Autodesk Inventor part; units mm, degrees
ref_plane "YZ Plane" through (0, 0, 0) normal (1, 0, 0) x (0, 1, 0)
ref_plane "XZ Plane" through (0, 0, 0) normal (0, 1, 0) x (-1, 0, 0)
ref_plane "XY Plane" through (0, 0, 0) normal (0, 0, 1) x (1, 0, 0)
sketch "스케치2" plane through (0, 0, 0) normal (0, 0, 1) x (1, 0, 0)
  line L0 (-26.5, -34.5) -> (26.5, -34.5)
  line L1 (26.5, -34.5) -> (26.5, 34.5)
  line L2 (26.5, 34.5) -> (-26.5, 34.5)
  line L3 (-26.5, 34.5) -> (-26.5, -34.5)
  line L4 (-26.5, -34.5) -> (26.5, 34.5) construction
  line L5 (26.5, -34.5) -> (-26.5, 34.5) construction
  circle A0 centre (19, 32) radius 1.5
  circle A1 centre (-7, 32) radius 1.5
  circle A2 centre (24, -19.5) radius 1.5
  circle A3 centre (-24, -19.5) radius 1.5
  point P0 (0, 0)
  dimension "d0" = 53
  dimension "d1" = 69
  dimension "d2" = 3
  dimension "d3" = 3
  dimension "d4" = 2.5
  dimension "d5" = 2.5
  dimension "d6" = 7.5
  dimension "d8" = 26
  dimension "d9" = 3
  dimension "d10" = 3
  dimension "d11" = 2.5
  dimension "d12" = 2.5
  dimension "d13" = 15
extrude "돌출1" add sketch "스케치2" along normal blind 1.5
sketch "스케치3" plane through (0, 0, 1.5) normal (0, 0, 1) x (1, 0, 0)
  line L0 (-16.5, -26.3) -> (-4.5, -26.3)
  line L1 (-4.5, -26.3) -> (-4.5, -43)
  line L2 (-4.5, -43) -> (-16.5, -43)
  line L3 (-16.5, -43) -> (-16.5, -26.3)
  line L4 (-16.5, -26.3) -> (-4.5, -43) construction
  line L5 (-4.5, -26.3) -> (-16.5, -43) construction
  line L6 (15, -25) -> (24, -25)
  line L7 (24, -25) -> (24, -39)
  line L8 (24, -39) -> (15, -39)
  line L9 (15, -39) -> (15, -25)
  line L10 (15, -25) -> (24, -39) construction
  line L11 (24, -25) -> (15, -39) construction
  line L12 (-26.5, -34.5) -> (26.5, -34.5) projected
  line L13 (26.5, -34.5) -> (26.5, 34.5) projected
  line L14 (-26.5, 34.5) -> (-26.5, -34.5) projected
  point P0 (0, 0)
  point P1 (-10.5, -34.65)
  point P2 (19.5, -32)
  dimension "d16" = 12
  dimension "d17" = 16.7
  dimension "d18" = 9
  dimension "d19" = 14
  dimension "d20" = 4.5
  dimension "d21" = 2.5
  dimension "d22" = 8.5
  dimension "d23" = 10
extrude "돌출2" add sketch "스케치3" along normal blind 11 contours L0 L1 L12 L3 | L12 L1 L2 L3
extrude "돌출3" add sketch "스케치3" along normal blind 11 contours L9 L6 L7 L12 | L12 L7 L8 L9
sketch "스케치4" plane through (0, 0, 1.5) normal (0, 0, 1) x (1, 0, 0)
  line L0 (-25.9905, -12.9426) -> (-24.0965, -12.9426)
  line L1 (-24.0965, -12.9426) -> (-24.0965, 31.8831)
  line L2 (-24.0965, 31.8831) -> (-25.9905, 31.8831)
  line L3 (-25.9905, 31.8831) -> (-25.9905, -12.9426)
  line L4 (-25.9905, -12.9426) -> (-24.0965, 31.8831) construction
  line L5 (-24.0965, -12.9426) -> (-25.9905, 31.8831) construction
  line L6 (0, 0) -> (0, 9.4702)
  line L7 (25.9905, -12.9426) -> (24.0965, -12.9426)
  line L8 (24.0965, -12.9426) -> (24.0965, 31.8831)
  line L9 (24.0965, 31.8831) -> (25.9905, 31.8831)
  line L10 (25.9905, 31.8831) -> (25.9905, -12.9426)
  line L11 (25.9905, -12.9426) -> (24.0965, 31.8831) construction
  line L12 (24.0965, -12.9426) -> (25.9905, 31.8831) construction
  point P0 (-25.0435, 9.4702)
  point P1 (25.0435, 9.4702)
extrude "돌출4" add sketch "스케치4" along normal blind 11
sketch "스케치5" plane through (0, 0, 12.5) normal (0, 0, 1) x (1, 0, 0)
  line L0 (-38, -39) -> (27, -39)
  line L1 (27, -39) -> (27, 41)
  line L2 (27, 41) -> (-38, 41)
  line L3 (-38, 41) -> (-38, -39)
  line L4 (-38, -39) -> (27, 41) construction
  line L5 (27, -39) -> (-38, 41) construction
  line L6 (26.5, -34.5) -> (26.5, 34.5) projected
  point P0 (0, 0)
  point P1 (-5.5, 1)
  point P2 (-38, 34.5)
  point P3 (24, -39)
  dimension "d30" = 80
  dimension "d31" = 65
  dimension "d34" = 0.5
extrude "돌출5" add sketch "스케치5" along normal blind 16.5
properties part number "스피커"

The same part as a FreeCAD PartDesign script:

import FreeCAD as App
import Part
import Sketcher
from FreeCAD import Vector
Q = App.Units.Quantity

doc = App.newDocument("Part")
body = doc.addObject("PartDesign::Body", "Body")

# Sketch on XY plane
sketch1 = body.newObject("Sketcher::SketchObject", "Sketch")
sketch1.AttachmentSupport = (doc.getObject("XY_Plane"), [""])
sketch1.MapMode = "FlatFace"
sketch1.addGeometry(Part.LineSegment(Vector(-26.5, 34.5, 0), Vector(-26.5, -34.5, 0)), False)
sketch1.addGeometry(Part.LineSegment(Vector(-26.5, -34.5, 0), Vector(26.5, -34.5, 0)), False)
sketch1.addGeometry(Part.LineSegment(Vector(26.5, -34.5, 0), Vector(26.5, 34.5, 0)), False)
sketch1.addGeometry(Part.LineSegment(Vector(26.5, 34.5, 0), Vector(-26.5, 34.5, 0)), False)
sketch1.addGeometry(Part.Circle(Vector(-24, -19.5, 0), Vector(0, 0, 1), 1.5), False)
sketch1.addGeometry(Part.Circle(Vector(24, -19.5, 0), Vector(0, 0, 1), 1.5), False)
sketch1.addGeometry(Part.Circle(Vector(-7, 32, 0), Vector(0, 0, 1), 1.5), False)
sketch1.addGeometry(Part.Circle(Vector(19, 32, 0), Vector(0, 0, 1), 1.5), False)
sketch1.addConstraint(Sketcher.Constraint("Coincident", 0, 2, 1, 1))
sketch1.addConstraint(Sketcher.Constraint("Coincident", 1, 2, 2, 1))
sketch1.addConstraint(Sketcher.Constraint("Coincident", 2, 2, 3, 1))
sketch1.addConstraint(Sketcher.Constraint("Coincident", 3, 2, 0, 1))
sketch1.addConstraint(Sketcher.Constraint("Vertical", 0))
sketch1.addConstraint(Sketcher.Constraint("Horizontal", 1))
sketch1.addConstraint(Sketcher.Constraint("Vertical", 2))
sketch1.addConstraint(Sketcher.Constraint("Horizontal", 3))
sketch1.addConstraint(Sketcher.Constraint("Equal", 4, 5))
sketch1.addConstraint(Sketcher.Constraint("Equal", 5, 6))
sketch1.addConstraint(Sketcher.Constraint("Equal", 6, 7))
sketch1.addConstraint(Sketcher.Constraint("Symmetric", 0, 2, 2, 2, -1, 1))
sketch1.addConstraint(Sketcher.Constraint("Symmetric", 4, 3, 5, 3, -2))
sketch1.addConstraint(Sketcher.Constraint("Horizontal", 6, 3, 7, 3))
sketch1.addConstraint(Sketcher.Constraint("Diameter", 4, Q("3 mm")))
sketch1.addConstraint(Sketcher.Constraint("DistanceX", 1, 1, 1, 2, Q("53 mm")))
sketch1.addConstraint(Sketcher.Constraint("DistanceY", 0, 2, 0, 1, Q("69 mm")))
sketch1.addConstraint(Sketcher.Constraint("DistanceX", 6, 3, 7, 3, Q("26 mm")))
sketch1.addConstraint(Sketcher.Constraint("DistanceY", 0, 2, 4, 3, Q("15 mm")))
sketch1.addConstraint(Sketcher.Constraint("DistanceX", 0, 2, 4, 3, Q("2.5 mm")))
sketch1.addConstraint(Sketcher.Constraint("DistanceX", 7, 3, 1, 2, Q("7.5 mm")))
sketch1.addConstraint(Sketcher.Constraint("DistanceY", 7, 3, 2, 2, Q("2.5 mm")))
pad1 = body.newObject("PartDesign::Pad", "Pad")
pad1.Profile = sketch1
pad1.Length = 1.5

# Sketch on XY plane
sketch2 = body.newObject("Sketcher::SketchObject", "Sketch001")
sketch2.AttachmentSupport = (doc.getObject("XY_Plane"), [""])
sketch2.MapMode = "FlatFace"
sketch2.AttachmentOffset = App.Placement(Vector(0, 0, 1.5), App.Rotation())
sketch2.addGeometry(Part.LineSegment(Vector(-4.5, -26.3, 0), Vector(-16.5, -26.3, 0)), False)
sketch2.addGeometry(Part.LineSegment(Vector(-16.5, -26.3, 0), Vector(-16.5, -43, 0)), False)
sketch2.addGeometry(Part.LineSegment(Vector(-16.5, -43, 0), Vector(-4.5, -43, 0)), False)
sketch2.addGeometry(Part.LineSegment(Vector(-4.5, -43, 0), Vector(-4.5, -26.3, 0)), False)
sketch2.addConstraint(Sketcher.Constraint("Coincident", 0, 2, 1, 1))
sketch2.addConstraint(Sketcher.Constraint("Coincident", 1, 2, 2, 1))
sketch2.addConstraint(Sketcher.Constraint("Coincident", 2, 2, 3, 1))
sketch2.addConstraint(Sketcher.Constraint("Coincident", 3, 2, 0, 1))
sketch2.addConstraint(Sketcher.Constraint("Horizontal", 0))
sketch2.addConstraint(Sketcher.Constraint("Vertical", 1))
sketch2.addConstraint(Sketcher.Constraint("Horizontal", 2))
sketch2.addConstraint(Sketcher.Constraint("Vertical", 3))
sketch2.addConstraint(Sketcher.Constraint("DistanceX", 0, 2, 0, 1, Q("12 mm")))
sketch2.addConstraint(Sketcher.Constraint("DistanceY", 1, 2, 1, 1, Q("16.7 mm")))
sketch2.addConstraint(Sketcher.Constraint("DistanceX", 2, 2, -1, 1, Q("4.5 mm")))
sketch2.addConstraint(Sketcher.Constraint("DistanceY", 1, 2, -1, 1, Q("43 mm")))
pad2 = body.newObject("PartDesign::Pad", "Pad001")
pad2.Profile = sketch2
pad2.Length = 11

# Sketch on XY plane
sketch3 = body.newObject("Sketcher::SketchObject", "Sketch002")
sketch3.AttachmentSupport = (doc.getObject("XY_Plane"), [""])
sketch3.MapMode = "FlatFace"
sketch3.AttachmentOffset = App.Placement(Vector(0, 0, 1.5), App.Rotation())
sketch3.addGeometry(Part.LineSegment(Vector(15, -25, 0), Vector(15, -39, 0)), False)
sketch3.addGeometry(Part.LineSegment(Vector(15, -39, 0), Vector(24, -39, 0)), False)
sketch3.addGeometry(Part.LineSegment(Vector(24, -39, 0), Vector(24, -25, 0)), False)
sketch3.addGeometry(Part.LineSegment(Vector(24, -25, 0), Vector(15, -25, 0)), False)
sketch3.addConstraint(Sketcher.Constraint("Coincident", 0, 2, 1, 1))
sketch3.addConstraint(Sketcher.Constraint("Coincident", 1, 2, 2, 1))
sketch3.addConstraint(Sketcher.Constraint("Coincident", 2, 2, 3, 1))
sketch3.addConstraint(Sketcher.Constraint("Coincident", 3, 2, 0, 1))
sketch3.addConstraint(Sketcher.Constraint("Vertical", 0))
sketch3.addConstraint(Sketcher.Constraint("Horizontal", 1))
sketch3.addConstraint(Sketcher.Constraint("Vertical", 2))
sketch3.addConstraint(Sketcher.Constraint("Horizontal", 3))
sketch3.addConstraint(Sketcher.Constraint("DistanceX", 1, 1, 1, 2, Q("9 mm")))
sketch3.addConstraint(Sketcher.Constraint("DistanceY", 0, 2, 0, 1, Q("14 mm")))
sketch3.addConstraint(Sketcher.Constraint("DistanceX", -1, 1, 0, 2, Q("15 mm")))
sketch3.addConstraint(Sketcher.Constraint("DistanceY", 0, 2, -1, 1, Q("39 mm")))
pad3 = body.newObject("PartDesign::Pad", "Pad002")
pad3.Profile = sketch3
pad3.Length = 11

# Sketch on XY plane
sketch4 = body.newObject("Sketcher::SketchObject", "Sketch003")
sketch4.AttachmentSupport = (doc.getObject("XY_Plane"), [""])
sketch4.MapMode = "FlatFace"
sketch4.AttachmentOffset = App.Placement(Vector(0, 0, 1.5), App.Rotation())
sketch4.addGeometry(Part.LineSegment(Vector(-25.9905, 31.8831, 0), Vector(-25.9905, -12.9426, 0)), False)
sketch4.addGeometry(Part.LineSegment(Vector(-25.9905, -12.9426, 0), Vector(-24.0965, -12.9426, 0)), False)
sketch4.addGeometry(Part.LineSegment(Vector(-24.0965, -12.9426, 0), Vector(-24.0965, 31.8831, 0)), False)
sketch4.addGeometry(Part.LineSegment(Vector(-24.0965, 31.8831, 0), Vector(-25.9905, 31.8831, 0)), False)
sketch4.addGeometry(Part.LineSegment(Vector(24.0965, -12.9426, 0), Vector(25.9905, -12.9426, 0)), False)
sketch4.addGeometry(Part.LineSegment(Vector(25.9905, -12.9426, 0), Vector(25.9905, 31.8831, 0)), False)
sketch4.addGeometry(Part.LineSegment(Vector(25.9905, 31.8831, 0), Vector(24.0965, 31.8831, 0)), False)
sketch4.addGeometry(Part.LineSegment(Vector(24.0965, 31.8831, 0), Vector(24.0965, -12.9426, 0)), False)
sketch4.addConstraint(Sketcher.Constraint("Coincident", 0, 2, 1, 1))
sketch4.addConstraint(Sketcher.Constraint("Coincident", 1, 2, 2, 1))
sketch4.addConstraint(Sketcher.Constraint("Coincident", 2, 2, 3, 1))
sketch4.addConstraint(Sketcher.Constraint("Coincident", 3, 2, 0, 1))
sketch4.addConstraint(Sketcher.Constraint("Coincident", 4, 2, 5, 1))
sketch4.addConstraint(Sketcher.Constraint("Coincident", 5, 2, 6, 1))
sketch4.addConstraint(Sketcher.Constraint("Coincident", 6, 2, 7, 1))
sketch4.addConstraint(Sketcher.Constraint("Coincident", 7, 2, 4, 1))
sketch4.addConstraint(Sketcher.Constraint("Vertical", 0))
sketch4.addConstraint(Sketcher.Constraint("Horizontal", 1))
sketch4.addConstraint(Sketcher.Constraint("Vertical", 2))
sketch4.addConstraint(Sketcher.Constraint("Horizontal", 3))
sketch4.addConstraint(Sketcher.Constraint("Horizontal", 4))
sketch4.addConstraint(Sketcher.Constraint("Vertical", 5))
sketch4.addConstraint(Sketcher.Constraint("Horizontal", 6))
sketch4.addConstraint(Sketcher.Constraint("Vertical", 7))
sketch4.addConstraint(Sketcher.Constraint("Symmetric", 0, 2, 4, 2, -2))
sketch4.addConstraint(Sketcher.Constraint("Symmetric", 2, 2, 6, 2, -2))
sketch4.addConstraint(Sketcher.Constraint("DistanceX", 1, 1, 1, 2, Q("1.894 mm")))
sketch4.addConstraint(Sketcher.Constraint("DistanceY", 0, 2, 0, 1, Q("44.8257 mm")))
sketch4.addConstraint(Sketcher.Constraint("DistanceY", -1, 1, 2, 2, Q("31.883 mm")))
sketch4.addConstraint(Sketcher.Constraint("DistanceX", 1, 2, 4, 2, Q("50.087 mm")))
pad4 = body.newObject("PartDesign::Pad", "Pad003")
pad4.Profile = sketch4
pad4.Length = 11

# Sketch on XY plane
sketch5 = body.newObject("Sketcher::SketchObject", "Sketch004")
sketch5.AttachmentSupport = (doc.getObject("XY_Plane"), [""])
sketch5.MapMode = "FlatFace"
sketch5.AttachmentOffset = App.Placement(Vector(0, 0, 12.5), App.Rotation())
sketch5.addGeometry(Part.LineSegment(Vector(-38, 41, 0), Vector(-38, -39, 0)), False)
sketch5.addGeometry(Part.LineSegment(Vector(-38, -39, 0), Vector(27, -39, 0)), False)
sketch5.addGeometry(Part.LineSegment(Vector(27, -39, 0), Vector(27, 41, 0)), False)
sketch5.addGeometry(Part.LineSegment(Vector(27, 41, 0), Vector(-38, 41, 0)), False)
sketch5.addConstraint(Sketcher.Constraint("Coincident", 0, 2, 1, 1))
sketch5.addConstraint(Sketcher.Constraint("Coincident", 1, 2, 2, 1))
sketch5.addConstraint(Sketcher.Constraint("Coincident", 2, 2, 3, 1))
sketch5.addConstraint(Sketcher.Constraint("Coincident", 3, 2, 0, 1))
sketch5.addConstraint(Sketcher.Constraint("Vertical", 0))
sketch5.addConstraint(Sketcher.Constraint("Horizontal", 1))
sketch5.addConstraint(Sketcher.Constraint("Vertical", 2))
sketch5.addConstraint(Sketcher.Constraint("Horizontal", 3))
sketch5.addConstraint(Sketcher.Constraint("DistanceX", 1, 1, 1, 2, Q("65 mm")))
sketch5.addConstraint(Sketcher.Constraint("DistanceY", 0, 2, 0, 1, Q("80 mm")))
sketch5.addConstraint(Sketcher.Constraint("DistanceX", 0, 2, -1, 1, Q("38 mm")))
sketch5.addConstraint(Sketcher.Constraint("DistanceY", 0, 2, -1, 1, Q("39 mm")))
pad5 = body.newObject("PartDesign::Pad", "Pad004")
pad5.Profile = sketch5
pad5.Length = 16.5

doc.recompute()
